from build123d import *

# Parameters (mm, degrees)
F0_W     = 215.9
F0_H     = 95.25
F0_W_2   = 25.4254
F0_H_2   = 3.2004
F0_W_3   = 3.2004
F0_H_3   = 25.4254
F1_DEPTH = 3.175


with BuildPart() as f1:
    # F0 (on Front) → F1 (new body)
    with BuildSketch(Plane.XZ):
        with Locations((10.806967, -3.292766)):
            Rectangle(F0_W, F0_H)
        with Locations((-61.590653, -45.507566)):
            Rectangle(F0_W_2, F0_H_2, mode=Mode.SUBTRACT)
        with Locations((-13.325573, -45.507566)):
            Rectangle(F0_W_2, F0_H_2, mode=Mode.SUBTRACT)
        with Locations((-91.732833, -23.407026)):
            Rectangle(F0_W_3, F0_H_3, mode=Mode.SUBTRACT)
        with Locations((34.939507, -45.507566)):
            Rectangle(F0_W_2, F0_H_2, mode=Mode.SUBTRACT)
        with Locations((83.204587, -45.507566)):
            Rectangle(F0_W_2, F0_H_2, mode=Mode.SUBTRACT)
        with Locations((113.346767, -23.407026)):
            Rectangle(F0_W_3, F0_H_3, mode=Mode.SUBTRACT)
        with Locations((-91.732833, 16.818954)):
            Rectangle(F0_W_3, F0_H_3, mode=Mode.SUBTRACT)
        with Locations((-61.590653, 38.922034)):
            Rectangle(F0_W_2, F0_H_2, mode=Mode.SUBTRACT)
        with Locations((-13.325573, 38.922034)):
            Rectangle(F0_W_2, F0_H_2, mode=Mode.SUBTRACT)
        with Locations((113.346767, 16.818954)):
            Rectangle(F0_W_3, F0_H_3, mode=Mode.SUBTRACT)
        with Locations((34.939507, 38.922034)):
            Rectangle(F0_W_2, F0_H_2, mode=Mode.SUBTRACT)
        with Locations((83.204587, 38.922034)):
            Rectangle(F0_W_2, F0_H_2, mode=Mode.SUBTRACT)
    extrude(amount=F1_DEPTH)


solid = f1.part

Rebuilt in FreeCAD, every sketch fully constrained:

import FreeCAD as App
import Part
import Sketcher
from FreeCAD import Vector
Q = App.Units.Quantity


def add_polygon(sketch, points):
    """Adds a closed chain of lines whose ends are joined by coincident constraints."""
    first, n = sketch.GeometryCount, len(points)
    for a, b in zip(points, points[1:] + points[:1]):
        sketch.addGeometry(Part.LineSegment(App.Vector(*a, 0), App.Vector(*b, 0)), False)
    for i in range(n):
        sketch.addConstraint(Sketcher.Constraint("Coincident", first + i, 2, first + (i + 1) % n, 1))

doc = App.newDocument("Part")
params = doc.addObject("Spreadsheet::Sheet", "Params")
for row, (alias, value) in enumerate([
    ("sketch1_width", "8.5 in"),
    ("sketch1_height", "3.75 in"),
    ("sketch1_width2", "1.001 in"),
    ("sketch1_width3", "0.126 in"),
    ("pad1_length", "0.125 in"),
], start=1):
    params.set(f"A{row}", alias)
    params.set(f"B{row}", "=" + value)
    params.setAlias(f"B{row}", alias)

body = doc.addObject("PartDesign::Body", "Body")

sketch1 = doc.addObject("Sketcher::SketchObject", "Sketch")
body.addObject(sketch1)
sketch1.AttachmentSupport = (doc.XZ_Plane, [""])
sketch1.MapMode = "FlatFace"
add_polygon(sketch1, [(-97.1, 44.3), (-97.1, -50.9), (118.8, -50.9), (118.8, 44.3)])
add_polygon(sketch1, [(-48.9, -47.1), (-74.3, -47.1), (-74.3, -43.9), (-48.9, -43.9)])
add_polygon(sketch1, [(-0.6, -47.1), (-26, -47.1), (-26, -43.9), (-0.6, -43.9)])
add_polygon(sketch1, [(-90.1, -36.1), (-93.3, -36.1), (-93.3, -10.7), (-90.1, -10.7)])
add_polygon(sketch1, [(47.7, -47.1), (22.2, -47.1), (22.2, -43.9), (47.7, -43.9)])
add_polygon(sketch1, [(95.9, -47.1), (70.5, -47.1), (70.5, -43.9), (95.9, -43.9)])
add_polygon(sketch1, [(114.9, -36.1), (111.7, -36.1), (111.7, -10.7), (114.9, -10.7)])
add_polygon(sketch1, [(-90.1, 4.1), (-93.3, 4.1), (-93.3, 29.5), (-90.1, 29.5)])
add_polygon(sketch1, [(-48.9, 37.3), (-74.3, 37.3), (-74.3, 40.5), (-48.9, 40.5)])
add_polygon(sketch1, [(-0.6, 37.3), (-26, 37.3), (-26, 40.5), (-0.6, 40.5)])
add_polygon(sketch1, [(114.9, 4.1), (111.7, 4.1), (111.7, 29.5), (114.9, 29.5)])
add_polygon(sketch1, [(47.7, 37.3), (22.2, 37.3), (22.2, 40.5), (47.7, 40.5)])
add_polygon(sketch1, [(95.9, 37.3), (70.5, 37.3), (70.5, 40.5), (95.9, 40.5)])
sketch1.addConstraint(Sketcher.Constraint("Vertical", 0))
sketch1.addConstraint(Sketcher.Constraint("Horizontal", 1))
sketch1.addConstraint(Sketcher.Constraint("Vertical", 2))
sketch1.addConstraint(Sketcher.Constraint("Horizontal", 3))
sketch1.addConstraint(Sketcher.Constraint("Horizontal", 4))
sketch1.addConstraint(Sketcher.Constraint("Vertical", 5))
sketch1.addConstraint(Sketcher.Constraint("Horizontal", 6))
sketch1.addConstraint(Sketcher.Constraint("Vertical", 7))
sketch1.addConstraint(Sketcher.Constraint("Horizontal", 8))
sketch1.addConstraint(Sketcher.Constraint("Vertical", 9))
sketch1.addConstraint(Sketcher.Constraint("Horizontal", 10))
sketch1.addConstraint(Sketcher.Constraint("Vertical", 11))
sketch1.addConstraint(Sketcher.Constraint("Horizontal", 12))
sketch1.addConstraint(Sketcher.Constraint("Vertical", 13))
sketch1.addConstraint(Sketcher.Constraint("Horizontal", 14))
sketch1.addConstraint(Sketcher.Constraint("Vertical", 15))
sketch1.addConstraint(Sketcher.Constraint("Horizontal", 16))
sketch1.addConstraint(Sketcher.Constraint("Vertical", 17))
sketch1.addConstraint(Sketcher.Constraint("Horizontal", 18))
sketch1.addConstraint(Sketcher.Constraint("Vertical", 19))
sketch1.addConstraint(Sketcher.Constraint("Horizontal", 20))
sketch1.addConstraint(Sketcher.Constraint("Vertical", 21))
sketch1.addConstraint(Sketcher.Constraint("Horizontal", 22))
sketch1.addConstraint(Sketcher.Constraint("Vertical", 23))
sketch1.addConstraint(Sketcher.Constraint("Horizontal", 24))
sketch1.addConstraint(Sketcher.Constraint("Vertical", 25))
sketch1.addConstraint(Sketcher.Constraint("Horizontal", 26))
sketch1.addConstraint(Sketcher.Constraint("Vertical", 27))
sketch1.addConstraint(Sketcher.Constraint("Horizontal", 28))
sketch1.addConstraint(Sketcher.Constraint("Vertical", 29))
sketch1.addConstraint(Sketcher.Constraint("Horizontal", 30))
sketch1.addConstraint(Sketcher.Constraint("Vertical", 31))
sketch1.addConstraint(Sketcher.Constraint("Horizontal", 32))
sketch1.addConstraint(Sketcher.Constraint("Vertical", 33))
sketch1.addConstraint(Sketcher.Constraint("Horizontal", 34))
sketch1.addConstraint(Sketcher.Constraint("Vertical", 35))
sketch1.addConstraint(Sketcher.Constraint("Horizontal", 36))
sketch1.addConstraint(Sketcher.Constraint("Vertical", 37))
sketch1.addConstraint(Sketcher.Constraint("Horizontal", 38))
sketch1.addConstraint(Sketcher.Constraint("Vertical", 39))
sketch1.addConstraint(Sketcher.Constraint("Horizontal", 40))
sketch1.addConstraint(Sketcher.Constraint("Vertical", 41))
sketch1.addConstraint(Sketcher.Constraint("Horizontal", 42))
sketch1.addConstraint(Sketcher.Constraint("Vertical", 43))
sketch1.addConstraint(Sketcher.Constraint("Horizontal", 44))
sketch1.addConstraint(Sketcher.Constraint("Vertical", 45))
sketch1.addConstraint(Sketcher.Constraint("Horizontal", 46))
sketch1.addConstraint(Sketcher.Constraint("Vertical", 47))
sketch1.addConstraint(Sketcher.Constraint("Horizontal", 48))
sketch1.addConstraint(Sketcher.Constraint("Vertical", 49))
sketch1.addConstraint(Sketcher.Constraint("Horizontal", 50))
sketch1.addConstraint(Sketcher.Constraint("Vertical", 51))
sketch1.addConstraint(Sketcher.Constraint("Horizontal", 7, 2, 8, 2))
sketch1.addConstraint(Sketcher.Constraint("Horizontal", 6, 2, 9, 2))
sketch1.addConstraint(Sketcher.Constraint("Horizontal", 11, 2, 16, 2))
sketch1.addConstraint(Sketcher.Constraint("Horizontal", 10, 2, 17, 2))
sketch1.addConstraint(Sketcher.Constraint("Horizontal", 19, 2, 20, 2))
sketch1.addConstraint(Sketcher.Constraint("Horizontal", 18, 2, 21, 2))
sketch1.addConstraint(Sketcher.Constraint("Horizontal", 15, 2, 24, 2))
sketch1.addConstraint(Sketcher.Constraint("Horizontal", 14, 2, 25, 2))
sketch1.addConstraint(Sketcher.Constraint("Horizontal", 35, 2, 36, 2))
sketch1.addConstraint(Sketcher.Constraint("Horizontal", 34, 2, 37, 2))
sketch1.addConstraint(Sketcher.Constraint("Horizontal", 31, 2, 40, 2))
sketch1.addConstraint(Sketcher.Constraint("Horizontal", 30, 2, 41, 2))
sketch1.addConstraint(Sketcher.Constraint("Horizontal", 39, 2, 44, 2))
sketch1.addConstraint(Sketcher.Constraint("Horizontal", 38, 2, 45, 2))
sketch1.addConstraint(Sketcher.Constraint("Horizontal", 47, 2, 48, 2))
sketch1.addConstraint(Sketcher.Constraint("Horizontal", 46, 2, 49, 2))
sketch1.addConstraint(Sketcher.Constraint("Vertical", 13, 2, 28, 2))
sketch1.addConstraint(Sketcher.Constraint("Vertical", 15, 2, 30, 2))
sketch1.addConstraint(Sketcher.Constraint("Vertical", 5, 2, 32, 2))
sketch1.addConstraint(Sketcher.Constraint("Vertical", 7, 2, 34, 2))
sketch1.addConstraint(Sketcher.Constraint("Vertical", 9, 2, 36, 2))
sketch1.addConstraint(Sketcher.Constraint("Vertical", 11, 2, 38, 2))
sketch1.addConstraint(Sketcher.Constraint("Vertical", 25, 2, 40, 2))
sketch1.addConstraint(Sketcher.Constraint("Vertical", 27, 2, 42, 2))
sketch1.addConstraint(Sketcher.Constraint("Vertical", 17, 2, 44, 2))
sketch1.addConstraint(Sketcher.Constraint("Vertical", 19, 2, 46, 2))
sketch1.addConstraint(Sketcher.Constraint("Vertical", 21, 2, 48, 2))
sketch1.addConstraint(Sketcher.Constraint("Vertical", 23, 2, 50, 2))
sketch1.addConstraint(Sketcher.Constraint("Equal", 6, 8))
sketch1.addConstraint(Sketcher.Constraint("Equal", 10, 16))
sketch1.addConstraint(Sketcher.Constraint("Equal", 18, 20))
sketch1.addConstraint(Sketcher.Constraint("Equal", 14, 24))
sketch1.addConstraint(Sketcher.Constraint("Equal", 42, 5))
sketch1.addConstraint(Sketcher.Constraint("Equal", 50, 13))
sketch1.addConstraint(Sketcher.Constraint("Equal", 27, 29))
sketch1.addConstraint(Sketcher.Constraint("Equal", 23, 33))
sketch1.addConstraint(Sketcher.Constraint("DistanceX", 1, 1, 1, 2, Q("8.5 in")))
sketch1.addConstraint(Sketcher.Constraint("DistanceY", 0, 2, 0, 1, Q("3.75 in")))
sketch1.addConstraint(Sketcher.Constraint("DistanceY", 4, 2, 3, 2, Q("3.6 in")))
sketch1.addConstraint(Sketcher.Constraint("DistanceX", 4, 2, 4, 1, Q("1.001 in")))
sketch1.addConstraint(Sketcher.Constraint("DistanceX", 12, 2, 12, 1, Q("0.126 in")))
sketch1.addConstraint(Sketcher.Constraint("DistanceX", 0, 2, 12, 2, Q("0.15 in")))
sketch1.addConstraint(Sketcher.Constraint("DistanceX", 26, 2, 1, 2, Q("0.15 in")))
sketch1.addConstraint(Sketcher.Constraint("DistanceY", 33, 2, 3, 2, Q("0.15 in")))
sketch1.addConstraint(Sketcher.Constraint("DistanceX", 0, 2, 4, 2, Q("0.8992 in")))
sketch1.addConstraint(Sketcher.Constraint("DistanceX", 7, 2, 8, 2, Q("0.8992 in")))
sketch1.addConstraint(Sketcher.Constraint("DistanceY", 0, 2, 12, 2, Q("0.5826 in")))
sketch1.addConstraint(Sketcher.Constraint("DistanceX", 11, 2, 16, 2, Q("0.8992 in")))
sketch1.addConstraint(Sketcher.Constraint("DistanceX", 19, 2, 20, 2, Q("0.8992 in")))
sketch1.addConstraint(Sketcher.Constraint("DistanceY", 13, 2, 28, 2, Q("0.5827 in")))
sketch1.addConstraint(Sketcher.Constraint("DistanceX", 0, 2, -1, 1, 97.143033))
sketch1.addConstraint(Sketcher.Constraint("DistanceY", 0, 2, -1, 1, 50.917766))
sketch1.setExpression("Constraints[140]", "Params.sketch1_width")
sketch1.setExpression("Constraints[141]", "Params.sketch1_height")
sketch1.setExpression("Constraints[143]", "Params.sketch1_width2")
sketch1.setExpression("Constraints[144]", "Params.sketch1_width3")
pad1 = doc.addObject("PartDesign::Pad", "Pad")
body.addObject(pad1)
pad1.Profile = sketch1
pad1.setExpression("Length", "Params.pad1_length")

doc.recompute()
